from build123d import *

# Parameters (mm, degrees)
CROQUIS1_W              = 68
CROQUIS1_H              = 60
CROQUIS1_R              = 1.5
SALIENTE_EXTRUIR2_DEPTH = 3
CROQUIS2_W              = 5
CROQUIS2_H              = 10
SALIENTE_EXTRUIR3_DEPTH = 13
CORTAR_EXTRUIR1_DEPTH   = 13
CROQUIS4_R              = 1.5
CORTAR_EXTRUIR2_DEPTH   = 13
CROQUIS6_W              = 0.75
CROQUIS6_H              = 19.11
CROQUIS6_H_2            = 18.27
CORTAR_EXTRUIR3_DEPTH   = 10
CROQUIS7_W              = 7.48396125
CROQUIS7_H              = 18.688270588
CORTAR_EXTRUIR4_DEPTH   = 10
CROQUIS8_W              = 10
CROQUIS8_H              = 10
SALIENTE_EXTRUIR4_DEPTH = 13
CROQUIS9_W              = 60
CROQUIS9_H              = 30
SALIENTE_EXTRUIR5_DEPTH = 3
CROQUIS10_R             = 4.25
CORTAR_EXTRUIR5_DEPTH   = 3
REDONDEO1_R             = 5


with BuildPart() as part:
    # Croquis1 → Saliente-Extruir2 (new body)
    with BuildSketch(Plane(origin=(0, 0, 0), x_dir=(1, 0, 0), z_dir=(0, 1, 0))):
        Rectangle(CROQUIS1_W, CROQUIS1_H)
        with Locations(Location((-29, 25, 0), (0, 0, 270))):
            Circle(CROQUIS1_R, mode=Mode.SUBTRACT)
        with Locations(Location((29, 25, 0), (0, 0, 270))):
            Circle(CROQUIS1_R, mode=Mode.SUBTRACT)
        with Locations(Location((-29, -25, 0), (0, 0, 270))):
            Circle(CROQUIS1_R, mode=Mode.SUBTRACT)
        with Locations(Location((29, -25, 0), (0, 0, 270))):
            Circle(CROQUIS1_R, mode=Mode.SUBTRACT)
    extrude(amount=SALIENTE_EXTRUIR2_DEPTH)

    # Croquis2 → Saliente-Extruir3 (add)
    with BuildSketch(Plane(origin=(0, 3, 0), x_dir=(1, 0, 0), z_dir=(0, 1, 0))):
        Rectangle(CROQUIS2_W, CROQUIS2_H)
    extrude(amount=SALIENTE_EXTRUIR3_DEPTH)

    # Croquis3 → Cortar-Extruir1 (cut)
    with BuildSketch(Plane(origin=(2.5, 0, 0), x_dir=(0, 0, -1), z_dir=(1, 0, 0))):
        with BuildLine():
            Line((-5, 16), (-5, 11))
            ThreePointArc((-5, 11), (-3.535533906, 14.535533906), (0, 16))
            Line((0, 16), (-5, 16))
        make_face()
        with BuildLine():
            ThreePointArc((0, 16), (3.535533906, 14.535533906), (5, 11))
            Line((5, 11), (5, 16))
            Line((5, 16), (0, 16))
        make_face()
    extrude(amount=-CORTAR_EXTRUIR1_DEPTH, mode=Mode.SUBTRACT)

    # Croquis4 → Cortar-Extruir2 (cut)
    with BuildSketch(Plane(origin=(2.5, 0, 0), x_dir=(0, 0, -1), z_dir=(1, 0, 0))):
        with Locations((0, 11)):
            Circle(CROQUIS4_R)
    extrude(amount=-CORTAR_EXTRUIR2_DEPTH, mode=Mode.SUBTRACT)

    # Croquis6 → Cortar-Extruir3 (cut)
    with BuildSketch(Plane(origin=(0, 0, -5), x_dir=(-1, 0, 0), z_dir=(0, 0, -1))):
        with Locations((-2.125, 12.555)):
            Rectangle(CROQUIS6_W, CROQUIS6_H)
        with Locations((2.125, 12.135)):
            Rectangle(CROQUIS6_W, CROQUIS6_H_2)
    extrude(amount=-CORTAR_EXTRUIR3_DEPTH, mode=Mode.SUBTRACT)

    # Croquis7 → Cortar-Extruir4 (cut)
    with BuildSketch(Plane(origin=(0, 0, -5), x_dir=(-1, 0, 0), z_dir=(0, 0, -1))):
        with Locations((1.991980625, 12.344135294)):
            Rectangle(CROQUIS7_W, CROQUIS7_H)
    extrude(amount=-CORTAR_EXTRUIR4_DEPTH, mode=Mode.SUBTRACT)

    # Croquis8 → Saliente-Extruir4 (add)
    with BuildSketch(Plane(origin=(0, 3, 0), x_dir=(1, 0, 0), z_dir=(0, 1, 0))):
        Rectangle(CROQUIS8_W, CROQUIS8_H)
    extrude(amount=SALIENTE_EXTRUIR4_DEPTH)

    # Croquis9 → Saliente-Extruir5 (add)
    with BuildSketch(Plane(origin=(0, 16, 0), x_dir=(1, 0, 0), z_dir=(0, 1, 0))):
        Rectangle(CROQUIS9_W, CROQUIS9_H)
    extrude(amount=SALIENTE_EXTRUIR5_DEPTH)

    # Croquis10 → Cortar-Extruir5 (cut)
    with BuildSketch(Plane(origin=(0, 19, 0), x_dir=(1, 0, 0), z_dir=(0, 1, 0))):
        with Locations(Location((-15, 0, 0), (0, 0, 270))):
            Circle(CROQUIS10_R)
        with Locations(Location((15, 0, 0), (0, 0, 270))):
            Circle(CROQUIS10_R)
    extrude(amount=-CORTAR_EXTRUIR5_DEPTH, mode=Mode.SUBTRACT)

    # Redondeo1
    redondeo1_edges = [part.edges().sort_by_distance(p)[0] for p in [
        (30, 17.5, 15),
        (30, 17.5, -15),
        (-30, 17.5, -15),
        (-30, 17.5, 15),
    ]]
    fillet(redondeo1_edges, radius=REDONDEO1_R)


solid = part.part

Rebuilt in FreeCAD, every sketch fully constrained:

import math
import FreeCAD as App
import Part
import Sketcher

V = App.Vector


def edges_at(feature, points):
    """Names of the edges that pass closest to the given points."""
    edges = feature.Shape.Edges
    near = lambda p: min(range(len(edges)), key=lambda i: edges[i].distToShape(Part.Vertex(*p))[0])
    return sorted({f"Edge{near(p) + 1}" for p in points})


def add_polygon(sketch, points):
    """Adds a closed chain of lines whose ends are joined by coincident constraints."""
    first, n = sketch.GeometryCount, len(points)
    for a, b in zip(points, points[1:] + points[:1]):
        sketch.addGeometry(Part.LineSegment(App.Vector(*a, 0), App.Vector(*b, 0)), False)
    for i in range(n):
        sketch.addConstraint(Sketcher.Constraint("Coincident", first + i, 2, first + (i + 1) % n, 1))

doc = App.newDocument("Part")
body = doc.addObject("PartDesign::Body", "Body")

# Sketch on XZ plane
sketch1 = body.newObject("Sketcher::SketchObject", "Sketch")
sketch1.AttachmentSupport = (doc.getObject("XZ_Plane"), [""])
sketch1.MapMode = "FlatFace"
add_polygon(sketch1, [(-34, -30), (-34, 30), (34, 30), (34, -30)])  # lines 0-3
sketch1.addGeometry(Part.Circle(V(-29, 25, 0), V(0, 0, 1), 1.5), False)  # 4
sketch1.addGeometry(Part.Circle(V(29, 25, 0), V(0, 0, 1), 1.5), False)  # 5
sketch1.addGeometry(Part.Circle(V(-29, -25, 0), V(0, 0, 1), 1.5), False)  # 6
sketch1.addGeometry(Part.Circle(V(29, -25, 0), V(0, 0, 1), 1.5), False)  # 7
sketch1.addConstraint(Sketcher.Constraint("Vertical", 0))
sketch1.addConstraint(Sketcher.Constraint("Horizontal", 1))
sketch1.addConstraint(Sketcher.Constraint("Vertical", 2))
sketch1.addConstraint(Sketcher.Constraint("Horizontal", 3))
sketch1.addConstraint(Sketcher.Constraint("Equal", 4, 5))
sketch1.addConstraint(Sketcher.Constraint("Equal", 5, 6))
sketch1.addConstraint(Sketcher.Constraint("Equal", 6, 7))
sketch1.addConstraint(Sketcher.Constraint("Symmetric", 5, 3, 6, 3, -1, 1))
sketch1.addConstraint(Sketcher.Constraint("Symmetric", 4, 3, 7, 3, -1, 1))
sketch1.addConstraint(Sketcher.Constraint("Symmetric", 0, 2, 2, 2, -1, 1))
sketch1.addConstraint(Sketcher.Constraint("Symmetric", 4, 3, 5, 3, -2))
sketch1.addConstraint(Sketcher.Constraint("Diameter", 4, 3.0))
sketch1.addConstraint(Sketcher.Constraint("DistanceX", 1, 1, 1, 2, 68.0))
sketch1.addConstraint(Sketcher.Constraint("DistanceY", 0, 1, 0, 2, 60.0))
sketch1.addConstraint(Sketcher.Constraint("DistanceX", 4, 3, -1, 1, 29.0))
sketch1.addConstraint(Sketcher.Constraint("DistanceY", -1, 1, 4, 3, 25.0))
pad1 = body.newObject("PartDesign::Pad", "Pad")
pad1.Profile = sketch1
pad1.Length = 3
pad1.Reversed = True

# Sketch on XZ plane
sketch2 = body.newObject("Sketcher::SketchObject", "Sketch001")
sketch2.AttachmentSupport = (doc.getObject("XZ_Plane"), [""])
sketch2.MapMode = "FlatFace"
sketch2.AttachmentOffset = App.Placement(V(0, 0, -3), App.Rotation())
add_polygon(sketch2, [(-2.5, -5), (-2.5, 5), (2.5, 5), (2.5, -5)])  # lines 0-3
sketch2.addConstraint(Sketcher.Constraint("Vertical", 0))
sketch2.addConstraint(Sketcher.Constraint("Horizontal", 1))
sketch2.addConstraint(Sketcher.Constraint("Vertical", 2))
sketch2.addConstraint(Sketcher.Constraint("Horizontal", 3))
sketch2.addConstraint(Sketcher.Constraint("Symmetric", 0, 2, 2, 2, -1, 1))
sketch2.addConstraint(Sketcher.Constraint("DistanceX", 1, 1, 1, 2, 5.0))
sketch2.addConstraint(Sketcher.Constraint("DistanceY", 0, 1, 0, 2, 10.0))
pad2 = body.newObject("PartDesign::Pad", "Pad001")
pad2.Profile = sketch2
pad2.Length = 13
pad2.Reversed = True

# Sketch on YZ plane
sketch3 = body.newObject("Sketcher::SketchObject", "Sketch002")
sketch3.AttachmentSupport = (doc.getObject("YZ_Plane"), [""])
sketch3.MapMode = "FlatFace"
sketch3.AttachmentOffset = App.Placement(V(0, 0, 2.5), App.Rotation())
sketch3.addGeometry(Part.LineSegment(V(16, 5, 0), V(11, 5, 0)), False)
sketch3.addGeometry(Part.ArcOfCircle(Part.Circle(V(11, 0, 0), V(0, 0, 1), 5), math.radians(0), math.radians(90)), False)
sketch3.addGeometry(Part.LineSegment(V(16, 0, 0), V(16, 5, 0)), False)
sketch3.addGeometry(Part.ArcOfCircle(Part.Circle(V(11, 0, 0), V(0, 0, 1), 5), math.radians(-90), math.radians(0)), False)
sketch3.addGeometry(Part.LineSegment(V(11, -5, 0), V(16, -5, 0)), False)
sketch3.addGeometry(Part.LineSegment(V(16, -5, 0), V(16, 0, 0)), False)
sketch3.addConstraint(Sketcher.Constraint("Tangent", 0, 2, 1, 2))
sketch3.addConstraint(Sketcher.Constraint("Tangent", 1, 1, 2, 1))
sketch3.addConstraint(Sketcher.Constraint("Coincident", 2, 2, 0, 1))
sketch3.addConstraint(Sketcher.Constraint("Tangent", 3, 1, 4, 1))
sketch3.addConstraint(Sketcher.Constraint("Coincident", 4, 2, 5, 1))
sketch3.addConstraint(Sketcher.Constraint("Tangent", 5, 2, 3, 2))
sketch3.addConstraint(Sketcher.Constraint("Horizontal", 0))
sketch3.addConstraint(Sketcher.Constraint("Vertical", 2))
sketch3.addConstraint(Sketcher.Constraint("Horizontal", 4))
sketch3.addConstraint(Sketcher.Constraint("Vertical", 5))
sketch3.addConstraint(Sketcher.Constraint("Coincident", 3, 3, 1, 3))
sketch3.addConstraint(Sketcher.Constraint("Equal", 1, 3))
sketch3.addConstraint(Sketcher.Constraint("PointOnObject", 1, 3, -1))
sketch3.addConstraint(Sketcher.Constraint("Radius", 1, 5.0))
sketch3.addConstraint(Sketcher.Constraint("DistanceX", -1, 1, 1, 3, 11.0))
pocket1 = body.newObject("PartDesign::Pocket", "Pocket")
pocket1.Profile = sketch3
pocket1.Length = 13

# Sketch on YZ plane
sketch4 = body.newObject("Sketcher::SketchObject", "Sketch003")
sketch4.AttachmentSupport = (doc.getObject("YZ_Plane"), [""])
sketch4.MapMode = "FlatFace"
sketch4.AttachmentOffset = App.Placement(V(0, 0, 2.5), App.Rotation())
sketch4.addGeometry(Part.Circle(V(11, 0, 0), V(0, 0, 1), 1.5), False)
sketch4.addConstraint(Sketcher.Constraint("PointOnObject", 0, 3, -1))
sketch4.addConstraint(Sketcher.Constraint("Diameter", 0, 3.0))
sketch4.addConstraint(Sketcher.Constraint("DistanceX", -1, 1, 0, 3, 11.0))
pocket2 = body.newObject("PartDesign::Pocket", "Pocket001")
pocket2.Profile = sketch4
pocket2.Length = 13

# Sketch on XY plane
sketch5 = body.newObject("Sketcher::SketchObject", "Sketch004")
sketch5.AttachmentSupport = (doc.getObject("XY_Plane"), [""])
sketch5.MapMode = "FlatFace"
sketch5.AttachmentOffset = App.Placement(V(0, 0, -5), App.Rotation())
add_polygon(sketch5, [(2.5, 22.11), (2.5, 3), (1.75, 3), (1.75, 22.11)])  # lines 0-3
add_polygon(sketch5, [(-1.75, 21.27), (-1.75, 3), (-2.5, 3), (-2.5, 21.27)])  # lines 4-7
sketch5.addConstraint(Sketcher.Constraint("Vertical", 0))
sketch5.addConstraint(Sketcher.Constraint("Horizontal", 1))
sketch5.addConstraint(Sketcher.Constraint("Vertical", 2))
sketch5.addConstraint(Sketcher.Constraint("Horizontal", 3))
sketch5.addConstraint(Sketcher.Constraint("Vertical", 4))
sketch5.addConstraint(Sketcher.Constraint("Horizontal", 5))
sketch5.addConstraint(Sketcher.Constraint("Vertical", 6))
sketch5.addConstraint(Sketcher.Constraint("Horizontal", 7))
sketch5.addConstraint(Sketcher.Constraint("Symmetric", 1, 2, 4, 2, -2))
sketch5.addConstraint(Sketcher.Constraint("Equal", 3, 5))
sketch5.addConstraint(Sketcher.Constraint("DistanceY", -1, 1, 0, 2, 3.0))
sketch5.addConstraint(Sketcher.Constraint("DistanceX", 5, 2, 0, 2, 5.0))
sketch5.addConstraint(Sketcher.Constraint("DistanceX", 1, 2, 1, 1, 0.75))
sketch5.addConstraint(Sketcher.Constraint("DistanceY", 0, 2, 0, 1, 19.11))
sketch5.addConstraint(Sketcher.Constraint("DistanceY", 4, 2, 4, 1, 18.27))
pocket3 = body.newObject("PartDesign::Pocket", "Pocket002")
pocket3.Profile = sketch5
pocket3.Length = 10
pocket3.Reversed = True

# Sketch on XY plane
sketch6 = body.newObject("Sketcher::SketchObject", "Sketch005")
sketch6.AttachmentSupport = (doc.getObject("XY_Plane"), [""])
sketch6.MapMode = "FlatFace"
sketch6.AttachmentOffset = App.Placement(V(0, 0, -5), App.Rotation())
add_polygon(sketch6, [(1.75, 21.688271), (1.75, 3), (-5.733961, 3), (-5.733961, 21.688271)])  # lines 0-3
sketch6.addConstraint(Sketcher.Constraint("Vertical", 0))
sketch6.addConstraint(Sketcher.Constraint("Horizontal", 1))
sketch6.addConstraint(Sketcher.Constraint("Vertical", 2))
sketch6.addConstraint(Sketcher.Constraint("Horizontal", 3))
sketch6.addConstraint(Sketcher.Constraint("DistanceY", -1, 1, 0, 2, 3.0))
sketch6.addConstraint(Sketcher.Constraint("DistanceX", -1, 1, 0, 2, 1.75))
sketch6.addConstraint(Sketcher.Constraint("DistanceX", 1, 2, 1, 1, 7.483961))
sketch6.addConstraint(Sketcher.Constraint("DistanceY", 0, 2, 0, 1, 18.688271))
pocket4 = body.newObject("PartDesign::Pocket", "Pocket003")
pocket4.Profile = sketch6
pocket4.Length = 10
pocket4.Reversed = True

# Sketch on XZ plane
sketch7 = body.newObject("Sketcher::SketchObject", "Sketch006")
sketch7.AttachmentSupport = (doc.getObject("XZ_Plane"), [""])
sketch7.MapMode = "FlatFace"
sketch7.AttachmentOffset = App.Placement(V(0, 0, -3), App.Rotation())
add_polygon(sketch7, [(-5, -5), (-5, 5), (5, 5), (5, -5)])  # lines 0-3
sketch7.addConstraint(Sketcher.Constraint("Vertical", 0))
sketch7.addConstraint(Sketcher.Constraint("Horizontal", 1))
sketch7.addConstraint(Sketcher.Constraint("Vertical", 2))
sketch7.addConstraint(Sketcher.Constraint("Horizontal", 3))
sketch7.addConstraint(Sketcher.Constraint("Symmetric", 0, 2, 2, 2, -1, 1))
sketch7.addConstraint(Sketcher.Constraint("Equal", 3, 0))
sketch7.addConstraint(Sketcher.Constraint("DistanceX", 1, 1, 1, 2, 10.0))
pad3 = body.newObject("PartDesign::Pad", "Pad002")
pad3.Profile = sketch7
pad3.Length = 13
pad3.Reversed = True

# Sketch on XZ plane
sketch8 = body.newObject("Sketcher::SketchObject", "Sketch007")
sketch8.AttachmentSupport = (doc.getObject("XZ_Plane"), [""])
sketch8.MapMode = "FlatFace"
sketch8.AttachmentOffset = App.Placement(V(0, 0, -16), App.Rotation())
add_polygon(sketch8, [(-30, -15), (-30, 15), (30, 15), (30, -15)])  # lines 0-3
sketch8.addConstraint(Sketcher.Constraint("Vertical", 0))
sketch8.addConstraint(Sketcher.Constraint("Horizontal", 1))
sketch8.addConstraint(Sketcher.Constraint("Vertical", 2))
sketch8.addConstraint(Sketcher.Constraint("Horizontal", 3))
sketch8.addConstraint(Sketcher.Constraint("Symmetric", 0, 2, 2, 2, -1, 1))
sketch8.addConstraint(Sketcher.Constraint("DistanceX", 1, 1, 1, 2, 60.0))
sketch8.addConstraint(Sketcher.Constraint("DistanceY", 0, 1, 0, 2, 30.0))
pad4 = body.newObject("PartDesign::Pad", "Pad003")
pad4.Profile = sketch8
pad4.Length = 3
pad4.Reversed = True

# Sketch on XZ plane
sketch9 = body.newObject("Sketcher::SketchObject", "Sketch008")
sketch9.AttachmentSupport = (doc.getObject("XZ_Plane"), [""])
sketch9.MapMode = "FlatFace"
sketch9.AttachmentOffset = App.Placement(V(0, 0, -19), App.Rotation())
sketch9.addGeometry(Part.Circle(V(-15, 0, 0), V(0, 0, 1), 4.25), False)
sketch9.addGeometry(Part.Circle(V(15, 0, 0), V(0, 0, 1), 4.25), False)
sketch9.addConstraint(Sketcher.Constraint("Equal", 0, 1))
sketch9.addConstraint(Sketcher.Constraint("Symmetric", 0, 3, 1, 3, -1, 1))
sketch9.addConstraint(Sketcher.Constraint("PointOnObject", 0, 3, -1))
sketch9.addConstraint(Sketcher.Constraint("Diameter", 0, 8.5))
sketch9.addConstraint(Sketcher.Constraint("DistanceX", 0, 3, -1, 1, 15.0))
pocket5 = body.newObject("PartDesign::Pocket", "Pocket004")
pocket5.Profile = sketch9
pocket5.Length = 3
pocket5.Reversed = True
doc.recompute()

fillet = body.newObject("PartDesign::Fillet", "Fillet")
fillet.Base = (pocket5, edges_at(pocket5, [
    (30, 17.5, 15),
    (30, 17.5, -15),
    (-30, 17.5, -15),
    (-30, 17.5, 15),
]))
fillet.Radius = 5

doc.recompute()
